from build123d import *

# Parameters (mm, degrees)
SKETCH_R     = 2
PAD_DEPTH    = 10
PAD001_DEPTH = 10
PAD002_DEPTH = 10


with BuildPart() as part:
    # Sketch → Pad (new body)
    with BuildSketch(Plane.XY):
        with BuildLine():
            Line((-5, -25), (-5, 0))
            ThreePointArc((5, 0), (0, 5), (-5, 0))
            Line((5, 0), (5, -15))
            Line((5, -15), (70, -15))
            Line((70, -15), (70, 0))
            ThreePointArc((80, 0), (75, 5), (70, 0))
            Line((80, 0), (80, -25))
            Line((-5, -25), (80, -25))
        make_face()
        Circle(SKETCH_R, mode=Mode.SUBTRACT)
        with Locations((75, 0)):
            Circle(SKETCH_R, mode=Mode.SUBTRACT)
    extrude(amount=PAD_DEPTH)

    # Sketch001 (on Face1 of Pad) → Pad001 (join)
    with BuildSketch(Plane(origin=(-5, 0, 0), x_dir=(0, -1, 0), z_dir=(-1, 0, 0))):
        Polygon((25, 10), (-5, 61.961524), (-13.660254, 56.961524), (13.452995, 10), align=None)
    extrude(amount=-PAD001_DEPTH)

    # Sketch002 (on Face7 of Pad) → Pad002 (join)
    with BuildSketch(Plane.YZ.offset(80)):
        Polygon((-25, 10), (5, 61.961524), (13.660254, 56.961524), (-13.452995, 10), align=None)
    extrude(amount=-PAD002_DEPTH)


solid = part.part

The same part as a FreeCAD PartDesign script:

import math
import FreeCAD as App
import Part
import Sketcher

V = App.Vector
Q = App.Units.Quantity

doc = App.newDocument("Part")
params = doc.addObject("Spreadsheet::Sheet", "Params")
for row, (alias, value) in enumerate([
    ("sketch1_diameter", "4 mm"),
    ("sketch1_radius", "5 mm"),
    ("sketch1_width", "85 mm"),
    ("sketch1_height", "25 mm"),
    ("sketch1_height2", "15 mm"),
    ("pad1_length", "10 mm"),
    ("sketch2_length", "60 mm"),
    ("sketch2_length2", "10 mm"),
    ("pad2_length", "10 mm"),
    ("sketch3_length", "60 mm"),
    ("sketch3_length2", "10 mm"),
    ("pad3_length", "10 mm"),
], start=1):
    params.set(f"A{row}", alias)
    params.set(f"B{row}", "=" + value)
    params.setAlias(f"B{row}", alias)

body = doc.addObject("PartDesign::Body", "Body")

sketch1 = doc.addObject("Sketcher::SketchObject", "Sketch")
body.addObject(sketch1)
sketch1.AttachmentSupport = (doc.XY_Plane, [""])
sketch1.MapMode = "FlatFace"
sketch1.addGeometry([
    Part.LineSegment(V(-5, 0, 0), V(-5, -25, 0)),
    Part.LineSegment(V(-5, -25, 0), V(80, -25, 0)),
    Part.LineSegment(V(80, -25, 0), V(80, 0, 0)),
    Part.ArcOfCircle(Part.Circle(V(75, 0, 0), V(0, 0, 1), 5), math.radians(0), math.radians(180)),
    Part.LineSegment(V(70, 0, 0), V(70, -15, 0)),
    Part.LineSegment(V(70, -15, 0), V(5, -15, 0)),
    Part.LineSegment(V(5, -15, 0), V(5, 0, 0)),
    Part.ArcOfCircle(Part.Circle(V(0, 0, 0), V(0, 0, 1), 5), math.radians(0), math.radians(180)),
    Part.Circle(V(75, 0, 0), V(0, 0, 1), 2),
    Part.Circle(V(0, 0, 0), V(0, 0, 1), 2),
], False)
sketch1.addConstraint([
    Sketcher.Constraint("Coincident", 0, 2, 1, 1),
    Sketcher.Constraint("Coincident", 1, 2, 2, 1),
    Sketcher.Constraint("Tangent", 2, 2, 3, 1),
    Sketcher.Constraint("Tangent", 3, 2, 4, 1),
    Sketcher.Constraint("Coincident", 4, 2, 5, 1),
    Sketcher.Constraint("Coincident", 5, 2, 6, 1),
    Sketcher.Constraint("Tangent", 6, 2, 7, 1),
    Sketcher.Constraint("Tangent", 7, 2, 0, 1),
    Sketcher.Constraint("Vertical", 0),
    Sketcher.Constraint("Horizontal", 1),
    Sketcher.Constraint("Vertical", 2),
    Sketcher.Constraint("Vertical", 4),
    Sketcher.Constraint("Horizontal", 5),
    Sketcher.Constraint("Vertical", 6),
    Sketcher.Constraint("Coincident", 7, 3, -1, 1),
    Sketcher.Constraint("Coincident", 9, 3, -1, 1),
    Sketcher.Constraint("Coincident", 8, 3, 3, 3),
    Sketcher.Constraint("Equal", 3, 7),
    Sketcher.Constraint("Equal", 8, 9),
    Sketcher.Constraint("PointOnObject", 3, 3, -1),
    Sketcher.Constraint("Diameter", 8, 4.0),
    Sketcher.Constraint("Radius", 3, 5.0),
    Sketcher.Constraint("DistanceX", 1, 1, 1, 2, 85.0),
    Sketcher.Constraint("DistanceY", 0, 2, 0, 1, 25.0),
    Sketcher.Constraint("DistanceY", 4, 2, 4, 1, 15.0),
])
sketch1.setExpression("Constraints[20]", "Params.sketch1_diameter")
sketch1.setExpression("Constraints[21]", "Params.sketch1_radius")
sketch1.setExpression("Constraints[22]", "Params.sketch1_width")
sketch1.setExpression("Constraints[23]", "Params.sketch1_height")
sketch1.setExpression("Constraints[24]", "Params.sketch1_height2")
pad1 = doc.addObject("PartDesign::Pad", "Pad")
body.addObject(pad1)
pad1.Profile = sketch1
pad1.setExpression("Length", "Params.pad1_length")

sketch2 = doc.addObject("Sketcher::SketchObject", "Sketch001")
body.addObject(sketch2)
sketch2.AttachmentSupport = (doc.YZ_Plane, [""])
sketch2.MapMode = "FlatFace"
sketch2.AttachmentOffset = App.Placement(V(0, 0, -5), App.Rotation())
sketch2.addGeometry([
    Part.LineSegment(V(-25, 10, 0), V(5, 62, 0)),
    Part.LineSegment(V(5, 62, 0), V(14, 57, 0)),
    Part.LineSegment(V(14, 57, 0), V(-13, 10, 0)),
    Part.LineSegment(V(-13, 10, 0), V(-25, 10, 0)),
], False)
sketch2.addConstraint([
    Sketcher.Constraint("Coincident", 0, 2, 1, 1),
    Sketcher.Constraint("Coincident", 1, 2, 2, 1),
    Sketcher.Constraint("Coincident", 2, 2, 3, 1),
    Sketcher.Constraint("Coincident", 3, 2, 0, 1),
    Sketcher.Constraint("Horizontal", 3),
    Sketcher.Constraint("Perpendicular", 0, 1),
    Sketcher.Constraint("Perpendicular", 1, 2),
    Sketcher.Constraint("Angle", 0, Q("60 deg")),
    Sketcher.Constraint("Distance", 0, 60.0),
    Sketcher.Constraint("Distance", 1, 10.0),
    Sketcher.Constraint("DistanceX", -1, 1, 0, 2, 5.0),
    Sketcher.Constraint("DistanceY", -1, 1, 2, 2, 10.0),
])
sketch2.setExpression("Constraints[8]", "Params.sketch2_length")
sketch2.setExpression("Constraints[9]", "Params.sketch2_length2")
pad2 = doc.addObject("PartDesign::Pad", "Pad001")
body.addObject(pad2)
pad2.Profile = sketch2
pad2.setExpression("Length", "Params.pad2_length")

sketch3 = doc.addObject("Sketcher::SketchObject", "Sketch002")
body.addObject(sketch3)
sketch3.AttachmentSupport = (doc.YZ_Plane, [""])
sketch3.MapMode = "FlatFace"
sketch3.AttachmentOffset = App.Placement(V(0, 0, 80), App.Rotation())
sketch3.addGeometry([
    Part.LineSegment(V(5, 62, 0), V(-25, 10, 0)),
    Part.LineSegment(V(-25, 10, 0), V(-13, 10, 0)),
    Part.LineSegment(V(-13, 10, 0), V(14, 57, 0)),
    Part.LineSegment(V(14, 57, 0), V(5, 62, 0)),
], False)
sketch3.addConstraint([
    Sketcher.Constraint("Coincident", 0, 2, 1, 1),
    Sketcher.Constraint("Coincident", 1, 2, 2, 1),
    Sketcher.Constraint("Coincident", 2, 2, 3, 1),
    Sketcher.Constraint("Coincident", 3, 2, 0, 1),
    Sketcher.Constraint("Horizontal", 1),
    Sketcher.Constraint("Parallel", 0, 2),
    Sketcher.Constraint("Perpendicular", 2, 3),
    Sketcher.Constraint("Angle", 0, Q("-120 deg")),
    Sketcher.Constraint("Distance", 0, 60.0),
    Sketcher.Constraint("Distance", 3, 10.0),
    Sketcher.Constraint("DistanceX", 0, 2, -1, 1, 25.0),
    Sketcher.Constraint("DistanceY", -1, 1, 0, 2, 10.0),
])
sketch3.setExpression("Constraints[8]", "Params.sketch3_length")
sketch3.setExpression("Constraints[9]", "Params.sketch3_length2")
pad3 = doc.addObject("PartDesign::Pad", "Pad002")
body.addObject(pad3)
pad3.Profile = sketch3
pad3.setExpression("Length", "Params.pad3_length")
pad3.Reversed = True

doc.recompute()
